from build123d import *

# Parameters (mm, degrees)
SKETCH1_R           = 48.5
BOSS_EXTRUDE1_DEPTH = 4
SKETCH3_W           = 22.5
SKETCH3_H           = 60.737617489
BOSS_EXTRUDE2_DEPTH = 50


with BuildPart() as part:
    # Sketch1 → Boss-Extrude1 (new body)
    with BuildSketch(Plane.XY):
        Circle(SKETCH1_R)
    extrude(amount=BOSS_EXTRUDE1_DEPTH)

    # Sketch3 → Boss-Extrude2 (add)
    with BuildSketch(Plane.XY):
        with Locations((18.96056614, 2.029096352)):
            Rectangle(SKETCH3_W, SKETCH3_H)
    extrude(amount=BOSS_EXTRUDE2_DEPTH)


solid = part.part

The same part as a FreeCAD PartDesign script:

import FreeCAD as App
import Part
import Sketcher

V = App.Vector
Q = App.Units.Quantity

doc = App.newDocument("Part")
body = doc.addObject("PartDesign::Body", "Body")

sketch1 = body.newObject("Sketcher::SketchObject", "Sketch")
sketch1.AttachmentSupport = (doc.getObject("XY_Plane"), [""])
sketch1.MapMode = "FlatFace"
sketch1.addGeometry(Part.Circle(V(0, 0, 0), V(0, 0, 1), 48), False)
sketch1.addConstraint(Sketcher.Constraint("Coincident", 0, 3, -1, 1))
sketch1.addConstraint(Sketcher.Constraint("Diameter", 0, Q("97 mm")))
pad1 = body.newObject("PartDesign::Pad", "Pad")
pad1.Profile = sketch1
pad1.Length = 4

sketch2 = body.newObject("Sketcher::SketchObject", "Sketch001")
sketch2.AttachmentSupport = (doc.getObject("XY_Plane"), [""])
sketch2.MapMode = "FlatFace"
sketch2.addGeometry(Part.LineSegment(V(8, 32, 0), V(8, -28, 0)), False)
sketch2.addGeometry(Part.LineSegment(V(8, -28, 0), V(30, -28, 0)), False)
sketch2.addGeometry(Part.LineSegment(V(30, -28, 0), V(30, 32, 0)), False)
sketch2.addGeometry(Part.LineSegment(V(30, 32, 0), V(8, 32, 0)), False)
sketch2.addConstraint(Sketcher.Constraint("Coincident", 0, 2, 1, 1))
sketch2.addConstraint(Sketcher.Constraint("Coincident", 1, 2, 2, 1))
sketch2.addConstraint(Sketcher.Constraint("Coincident", 2, 2, 3, 1))
sketch2.addConstraint(Sketcher.Constraint("Coincident", 3, 2, 0, 1))
sketch2.addConstraint(Sketcher.Constraint("Vertical", 0))
sketch2.addConstraint(Sketcher.Constraint("Horizontal", 1))
sketch2.addConstraint(Sketcher.Constraint("Vertical", 2))
sketch2.addConstraint(Sketcher.Constraint("Horizontal", 3))
sketch2.addConstraint(Sketcher.Constraint("DistanceX", 1, 1, 1, 2, Q("22.5 mm")))
sketch2.addConstraint(Sketcher.Constraint("DistanceY", 0, 2, 0, 1, Q("60.737617 mm")))
sketch2.addConstraint(Sketcher.Constraint("DistanceX", -1, 1, 0, 2, Q("7.710566 mm")))
sketch2.addConstraint(Sketcher.Constraint("DistanceY", 0, 2, -1, 1, Q("28.339712 mm")))
pad2 = body.newObject("PartDesign::Pad", "Pad001")
pad2.Profile = sketch2
pad2.Length = 50

doc.recompute()
